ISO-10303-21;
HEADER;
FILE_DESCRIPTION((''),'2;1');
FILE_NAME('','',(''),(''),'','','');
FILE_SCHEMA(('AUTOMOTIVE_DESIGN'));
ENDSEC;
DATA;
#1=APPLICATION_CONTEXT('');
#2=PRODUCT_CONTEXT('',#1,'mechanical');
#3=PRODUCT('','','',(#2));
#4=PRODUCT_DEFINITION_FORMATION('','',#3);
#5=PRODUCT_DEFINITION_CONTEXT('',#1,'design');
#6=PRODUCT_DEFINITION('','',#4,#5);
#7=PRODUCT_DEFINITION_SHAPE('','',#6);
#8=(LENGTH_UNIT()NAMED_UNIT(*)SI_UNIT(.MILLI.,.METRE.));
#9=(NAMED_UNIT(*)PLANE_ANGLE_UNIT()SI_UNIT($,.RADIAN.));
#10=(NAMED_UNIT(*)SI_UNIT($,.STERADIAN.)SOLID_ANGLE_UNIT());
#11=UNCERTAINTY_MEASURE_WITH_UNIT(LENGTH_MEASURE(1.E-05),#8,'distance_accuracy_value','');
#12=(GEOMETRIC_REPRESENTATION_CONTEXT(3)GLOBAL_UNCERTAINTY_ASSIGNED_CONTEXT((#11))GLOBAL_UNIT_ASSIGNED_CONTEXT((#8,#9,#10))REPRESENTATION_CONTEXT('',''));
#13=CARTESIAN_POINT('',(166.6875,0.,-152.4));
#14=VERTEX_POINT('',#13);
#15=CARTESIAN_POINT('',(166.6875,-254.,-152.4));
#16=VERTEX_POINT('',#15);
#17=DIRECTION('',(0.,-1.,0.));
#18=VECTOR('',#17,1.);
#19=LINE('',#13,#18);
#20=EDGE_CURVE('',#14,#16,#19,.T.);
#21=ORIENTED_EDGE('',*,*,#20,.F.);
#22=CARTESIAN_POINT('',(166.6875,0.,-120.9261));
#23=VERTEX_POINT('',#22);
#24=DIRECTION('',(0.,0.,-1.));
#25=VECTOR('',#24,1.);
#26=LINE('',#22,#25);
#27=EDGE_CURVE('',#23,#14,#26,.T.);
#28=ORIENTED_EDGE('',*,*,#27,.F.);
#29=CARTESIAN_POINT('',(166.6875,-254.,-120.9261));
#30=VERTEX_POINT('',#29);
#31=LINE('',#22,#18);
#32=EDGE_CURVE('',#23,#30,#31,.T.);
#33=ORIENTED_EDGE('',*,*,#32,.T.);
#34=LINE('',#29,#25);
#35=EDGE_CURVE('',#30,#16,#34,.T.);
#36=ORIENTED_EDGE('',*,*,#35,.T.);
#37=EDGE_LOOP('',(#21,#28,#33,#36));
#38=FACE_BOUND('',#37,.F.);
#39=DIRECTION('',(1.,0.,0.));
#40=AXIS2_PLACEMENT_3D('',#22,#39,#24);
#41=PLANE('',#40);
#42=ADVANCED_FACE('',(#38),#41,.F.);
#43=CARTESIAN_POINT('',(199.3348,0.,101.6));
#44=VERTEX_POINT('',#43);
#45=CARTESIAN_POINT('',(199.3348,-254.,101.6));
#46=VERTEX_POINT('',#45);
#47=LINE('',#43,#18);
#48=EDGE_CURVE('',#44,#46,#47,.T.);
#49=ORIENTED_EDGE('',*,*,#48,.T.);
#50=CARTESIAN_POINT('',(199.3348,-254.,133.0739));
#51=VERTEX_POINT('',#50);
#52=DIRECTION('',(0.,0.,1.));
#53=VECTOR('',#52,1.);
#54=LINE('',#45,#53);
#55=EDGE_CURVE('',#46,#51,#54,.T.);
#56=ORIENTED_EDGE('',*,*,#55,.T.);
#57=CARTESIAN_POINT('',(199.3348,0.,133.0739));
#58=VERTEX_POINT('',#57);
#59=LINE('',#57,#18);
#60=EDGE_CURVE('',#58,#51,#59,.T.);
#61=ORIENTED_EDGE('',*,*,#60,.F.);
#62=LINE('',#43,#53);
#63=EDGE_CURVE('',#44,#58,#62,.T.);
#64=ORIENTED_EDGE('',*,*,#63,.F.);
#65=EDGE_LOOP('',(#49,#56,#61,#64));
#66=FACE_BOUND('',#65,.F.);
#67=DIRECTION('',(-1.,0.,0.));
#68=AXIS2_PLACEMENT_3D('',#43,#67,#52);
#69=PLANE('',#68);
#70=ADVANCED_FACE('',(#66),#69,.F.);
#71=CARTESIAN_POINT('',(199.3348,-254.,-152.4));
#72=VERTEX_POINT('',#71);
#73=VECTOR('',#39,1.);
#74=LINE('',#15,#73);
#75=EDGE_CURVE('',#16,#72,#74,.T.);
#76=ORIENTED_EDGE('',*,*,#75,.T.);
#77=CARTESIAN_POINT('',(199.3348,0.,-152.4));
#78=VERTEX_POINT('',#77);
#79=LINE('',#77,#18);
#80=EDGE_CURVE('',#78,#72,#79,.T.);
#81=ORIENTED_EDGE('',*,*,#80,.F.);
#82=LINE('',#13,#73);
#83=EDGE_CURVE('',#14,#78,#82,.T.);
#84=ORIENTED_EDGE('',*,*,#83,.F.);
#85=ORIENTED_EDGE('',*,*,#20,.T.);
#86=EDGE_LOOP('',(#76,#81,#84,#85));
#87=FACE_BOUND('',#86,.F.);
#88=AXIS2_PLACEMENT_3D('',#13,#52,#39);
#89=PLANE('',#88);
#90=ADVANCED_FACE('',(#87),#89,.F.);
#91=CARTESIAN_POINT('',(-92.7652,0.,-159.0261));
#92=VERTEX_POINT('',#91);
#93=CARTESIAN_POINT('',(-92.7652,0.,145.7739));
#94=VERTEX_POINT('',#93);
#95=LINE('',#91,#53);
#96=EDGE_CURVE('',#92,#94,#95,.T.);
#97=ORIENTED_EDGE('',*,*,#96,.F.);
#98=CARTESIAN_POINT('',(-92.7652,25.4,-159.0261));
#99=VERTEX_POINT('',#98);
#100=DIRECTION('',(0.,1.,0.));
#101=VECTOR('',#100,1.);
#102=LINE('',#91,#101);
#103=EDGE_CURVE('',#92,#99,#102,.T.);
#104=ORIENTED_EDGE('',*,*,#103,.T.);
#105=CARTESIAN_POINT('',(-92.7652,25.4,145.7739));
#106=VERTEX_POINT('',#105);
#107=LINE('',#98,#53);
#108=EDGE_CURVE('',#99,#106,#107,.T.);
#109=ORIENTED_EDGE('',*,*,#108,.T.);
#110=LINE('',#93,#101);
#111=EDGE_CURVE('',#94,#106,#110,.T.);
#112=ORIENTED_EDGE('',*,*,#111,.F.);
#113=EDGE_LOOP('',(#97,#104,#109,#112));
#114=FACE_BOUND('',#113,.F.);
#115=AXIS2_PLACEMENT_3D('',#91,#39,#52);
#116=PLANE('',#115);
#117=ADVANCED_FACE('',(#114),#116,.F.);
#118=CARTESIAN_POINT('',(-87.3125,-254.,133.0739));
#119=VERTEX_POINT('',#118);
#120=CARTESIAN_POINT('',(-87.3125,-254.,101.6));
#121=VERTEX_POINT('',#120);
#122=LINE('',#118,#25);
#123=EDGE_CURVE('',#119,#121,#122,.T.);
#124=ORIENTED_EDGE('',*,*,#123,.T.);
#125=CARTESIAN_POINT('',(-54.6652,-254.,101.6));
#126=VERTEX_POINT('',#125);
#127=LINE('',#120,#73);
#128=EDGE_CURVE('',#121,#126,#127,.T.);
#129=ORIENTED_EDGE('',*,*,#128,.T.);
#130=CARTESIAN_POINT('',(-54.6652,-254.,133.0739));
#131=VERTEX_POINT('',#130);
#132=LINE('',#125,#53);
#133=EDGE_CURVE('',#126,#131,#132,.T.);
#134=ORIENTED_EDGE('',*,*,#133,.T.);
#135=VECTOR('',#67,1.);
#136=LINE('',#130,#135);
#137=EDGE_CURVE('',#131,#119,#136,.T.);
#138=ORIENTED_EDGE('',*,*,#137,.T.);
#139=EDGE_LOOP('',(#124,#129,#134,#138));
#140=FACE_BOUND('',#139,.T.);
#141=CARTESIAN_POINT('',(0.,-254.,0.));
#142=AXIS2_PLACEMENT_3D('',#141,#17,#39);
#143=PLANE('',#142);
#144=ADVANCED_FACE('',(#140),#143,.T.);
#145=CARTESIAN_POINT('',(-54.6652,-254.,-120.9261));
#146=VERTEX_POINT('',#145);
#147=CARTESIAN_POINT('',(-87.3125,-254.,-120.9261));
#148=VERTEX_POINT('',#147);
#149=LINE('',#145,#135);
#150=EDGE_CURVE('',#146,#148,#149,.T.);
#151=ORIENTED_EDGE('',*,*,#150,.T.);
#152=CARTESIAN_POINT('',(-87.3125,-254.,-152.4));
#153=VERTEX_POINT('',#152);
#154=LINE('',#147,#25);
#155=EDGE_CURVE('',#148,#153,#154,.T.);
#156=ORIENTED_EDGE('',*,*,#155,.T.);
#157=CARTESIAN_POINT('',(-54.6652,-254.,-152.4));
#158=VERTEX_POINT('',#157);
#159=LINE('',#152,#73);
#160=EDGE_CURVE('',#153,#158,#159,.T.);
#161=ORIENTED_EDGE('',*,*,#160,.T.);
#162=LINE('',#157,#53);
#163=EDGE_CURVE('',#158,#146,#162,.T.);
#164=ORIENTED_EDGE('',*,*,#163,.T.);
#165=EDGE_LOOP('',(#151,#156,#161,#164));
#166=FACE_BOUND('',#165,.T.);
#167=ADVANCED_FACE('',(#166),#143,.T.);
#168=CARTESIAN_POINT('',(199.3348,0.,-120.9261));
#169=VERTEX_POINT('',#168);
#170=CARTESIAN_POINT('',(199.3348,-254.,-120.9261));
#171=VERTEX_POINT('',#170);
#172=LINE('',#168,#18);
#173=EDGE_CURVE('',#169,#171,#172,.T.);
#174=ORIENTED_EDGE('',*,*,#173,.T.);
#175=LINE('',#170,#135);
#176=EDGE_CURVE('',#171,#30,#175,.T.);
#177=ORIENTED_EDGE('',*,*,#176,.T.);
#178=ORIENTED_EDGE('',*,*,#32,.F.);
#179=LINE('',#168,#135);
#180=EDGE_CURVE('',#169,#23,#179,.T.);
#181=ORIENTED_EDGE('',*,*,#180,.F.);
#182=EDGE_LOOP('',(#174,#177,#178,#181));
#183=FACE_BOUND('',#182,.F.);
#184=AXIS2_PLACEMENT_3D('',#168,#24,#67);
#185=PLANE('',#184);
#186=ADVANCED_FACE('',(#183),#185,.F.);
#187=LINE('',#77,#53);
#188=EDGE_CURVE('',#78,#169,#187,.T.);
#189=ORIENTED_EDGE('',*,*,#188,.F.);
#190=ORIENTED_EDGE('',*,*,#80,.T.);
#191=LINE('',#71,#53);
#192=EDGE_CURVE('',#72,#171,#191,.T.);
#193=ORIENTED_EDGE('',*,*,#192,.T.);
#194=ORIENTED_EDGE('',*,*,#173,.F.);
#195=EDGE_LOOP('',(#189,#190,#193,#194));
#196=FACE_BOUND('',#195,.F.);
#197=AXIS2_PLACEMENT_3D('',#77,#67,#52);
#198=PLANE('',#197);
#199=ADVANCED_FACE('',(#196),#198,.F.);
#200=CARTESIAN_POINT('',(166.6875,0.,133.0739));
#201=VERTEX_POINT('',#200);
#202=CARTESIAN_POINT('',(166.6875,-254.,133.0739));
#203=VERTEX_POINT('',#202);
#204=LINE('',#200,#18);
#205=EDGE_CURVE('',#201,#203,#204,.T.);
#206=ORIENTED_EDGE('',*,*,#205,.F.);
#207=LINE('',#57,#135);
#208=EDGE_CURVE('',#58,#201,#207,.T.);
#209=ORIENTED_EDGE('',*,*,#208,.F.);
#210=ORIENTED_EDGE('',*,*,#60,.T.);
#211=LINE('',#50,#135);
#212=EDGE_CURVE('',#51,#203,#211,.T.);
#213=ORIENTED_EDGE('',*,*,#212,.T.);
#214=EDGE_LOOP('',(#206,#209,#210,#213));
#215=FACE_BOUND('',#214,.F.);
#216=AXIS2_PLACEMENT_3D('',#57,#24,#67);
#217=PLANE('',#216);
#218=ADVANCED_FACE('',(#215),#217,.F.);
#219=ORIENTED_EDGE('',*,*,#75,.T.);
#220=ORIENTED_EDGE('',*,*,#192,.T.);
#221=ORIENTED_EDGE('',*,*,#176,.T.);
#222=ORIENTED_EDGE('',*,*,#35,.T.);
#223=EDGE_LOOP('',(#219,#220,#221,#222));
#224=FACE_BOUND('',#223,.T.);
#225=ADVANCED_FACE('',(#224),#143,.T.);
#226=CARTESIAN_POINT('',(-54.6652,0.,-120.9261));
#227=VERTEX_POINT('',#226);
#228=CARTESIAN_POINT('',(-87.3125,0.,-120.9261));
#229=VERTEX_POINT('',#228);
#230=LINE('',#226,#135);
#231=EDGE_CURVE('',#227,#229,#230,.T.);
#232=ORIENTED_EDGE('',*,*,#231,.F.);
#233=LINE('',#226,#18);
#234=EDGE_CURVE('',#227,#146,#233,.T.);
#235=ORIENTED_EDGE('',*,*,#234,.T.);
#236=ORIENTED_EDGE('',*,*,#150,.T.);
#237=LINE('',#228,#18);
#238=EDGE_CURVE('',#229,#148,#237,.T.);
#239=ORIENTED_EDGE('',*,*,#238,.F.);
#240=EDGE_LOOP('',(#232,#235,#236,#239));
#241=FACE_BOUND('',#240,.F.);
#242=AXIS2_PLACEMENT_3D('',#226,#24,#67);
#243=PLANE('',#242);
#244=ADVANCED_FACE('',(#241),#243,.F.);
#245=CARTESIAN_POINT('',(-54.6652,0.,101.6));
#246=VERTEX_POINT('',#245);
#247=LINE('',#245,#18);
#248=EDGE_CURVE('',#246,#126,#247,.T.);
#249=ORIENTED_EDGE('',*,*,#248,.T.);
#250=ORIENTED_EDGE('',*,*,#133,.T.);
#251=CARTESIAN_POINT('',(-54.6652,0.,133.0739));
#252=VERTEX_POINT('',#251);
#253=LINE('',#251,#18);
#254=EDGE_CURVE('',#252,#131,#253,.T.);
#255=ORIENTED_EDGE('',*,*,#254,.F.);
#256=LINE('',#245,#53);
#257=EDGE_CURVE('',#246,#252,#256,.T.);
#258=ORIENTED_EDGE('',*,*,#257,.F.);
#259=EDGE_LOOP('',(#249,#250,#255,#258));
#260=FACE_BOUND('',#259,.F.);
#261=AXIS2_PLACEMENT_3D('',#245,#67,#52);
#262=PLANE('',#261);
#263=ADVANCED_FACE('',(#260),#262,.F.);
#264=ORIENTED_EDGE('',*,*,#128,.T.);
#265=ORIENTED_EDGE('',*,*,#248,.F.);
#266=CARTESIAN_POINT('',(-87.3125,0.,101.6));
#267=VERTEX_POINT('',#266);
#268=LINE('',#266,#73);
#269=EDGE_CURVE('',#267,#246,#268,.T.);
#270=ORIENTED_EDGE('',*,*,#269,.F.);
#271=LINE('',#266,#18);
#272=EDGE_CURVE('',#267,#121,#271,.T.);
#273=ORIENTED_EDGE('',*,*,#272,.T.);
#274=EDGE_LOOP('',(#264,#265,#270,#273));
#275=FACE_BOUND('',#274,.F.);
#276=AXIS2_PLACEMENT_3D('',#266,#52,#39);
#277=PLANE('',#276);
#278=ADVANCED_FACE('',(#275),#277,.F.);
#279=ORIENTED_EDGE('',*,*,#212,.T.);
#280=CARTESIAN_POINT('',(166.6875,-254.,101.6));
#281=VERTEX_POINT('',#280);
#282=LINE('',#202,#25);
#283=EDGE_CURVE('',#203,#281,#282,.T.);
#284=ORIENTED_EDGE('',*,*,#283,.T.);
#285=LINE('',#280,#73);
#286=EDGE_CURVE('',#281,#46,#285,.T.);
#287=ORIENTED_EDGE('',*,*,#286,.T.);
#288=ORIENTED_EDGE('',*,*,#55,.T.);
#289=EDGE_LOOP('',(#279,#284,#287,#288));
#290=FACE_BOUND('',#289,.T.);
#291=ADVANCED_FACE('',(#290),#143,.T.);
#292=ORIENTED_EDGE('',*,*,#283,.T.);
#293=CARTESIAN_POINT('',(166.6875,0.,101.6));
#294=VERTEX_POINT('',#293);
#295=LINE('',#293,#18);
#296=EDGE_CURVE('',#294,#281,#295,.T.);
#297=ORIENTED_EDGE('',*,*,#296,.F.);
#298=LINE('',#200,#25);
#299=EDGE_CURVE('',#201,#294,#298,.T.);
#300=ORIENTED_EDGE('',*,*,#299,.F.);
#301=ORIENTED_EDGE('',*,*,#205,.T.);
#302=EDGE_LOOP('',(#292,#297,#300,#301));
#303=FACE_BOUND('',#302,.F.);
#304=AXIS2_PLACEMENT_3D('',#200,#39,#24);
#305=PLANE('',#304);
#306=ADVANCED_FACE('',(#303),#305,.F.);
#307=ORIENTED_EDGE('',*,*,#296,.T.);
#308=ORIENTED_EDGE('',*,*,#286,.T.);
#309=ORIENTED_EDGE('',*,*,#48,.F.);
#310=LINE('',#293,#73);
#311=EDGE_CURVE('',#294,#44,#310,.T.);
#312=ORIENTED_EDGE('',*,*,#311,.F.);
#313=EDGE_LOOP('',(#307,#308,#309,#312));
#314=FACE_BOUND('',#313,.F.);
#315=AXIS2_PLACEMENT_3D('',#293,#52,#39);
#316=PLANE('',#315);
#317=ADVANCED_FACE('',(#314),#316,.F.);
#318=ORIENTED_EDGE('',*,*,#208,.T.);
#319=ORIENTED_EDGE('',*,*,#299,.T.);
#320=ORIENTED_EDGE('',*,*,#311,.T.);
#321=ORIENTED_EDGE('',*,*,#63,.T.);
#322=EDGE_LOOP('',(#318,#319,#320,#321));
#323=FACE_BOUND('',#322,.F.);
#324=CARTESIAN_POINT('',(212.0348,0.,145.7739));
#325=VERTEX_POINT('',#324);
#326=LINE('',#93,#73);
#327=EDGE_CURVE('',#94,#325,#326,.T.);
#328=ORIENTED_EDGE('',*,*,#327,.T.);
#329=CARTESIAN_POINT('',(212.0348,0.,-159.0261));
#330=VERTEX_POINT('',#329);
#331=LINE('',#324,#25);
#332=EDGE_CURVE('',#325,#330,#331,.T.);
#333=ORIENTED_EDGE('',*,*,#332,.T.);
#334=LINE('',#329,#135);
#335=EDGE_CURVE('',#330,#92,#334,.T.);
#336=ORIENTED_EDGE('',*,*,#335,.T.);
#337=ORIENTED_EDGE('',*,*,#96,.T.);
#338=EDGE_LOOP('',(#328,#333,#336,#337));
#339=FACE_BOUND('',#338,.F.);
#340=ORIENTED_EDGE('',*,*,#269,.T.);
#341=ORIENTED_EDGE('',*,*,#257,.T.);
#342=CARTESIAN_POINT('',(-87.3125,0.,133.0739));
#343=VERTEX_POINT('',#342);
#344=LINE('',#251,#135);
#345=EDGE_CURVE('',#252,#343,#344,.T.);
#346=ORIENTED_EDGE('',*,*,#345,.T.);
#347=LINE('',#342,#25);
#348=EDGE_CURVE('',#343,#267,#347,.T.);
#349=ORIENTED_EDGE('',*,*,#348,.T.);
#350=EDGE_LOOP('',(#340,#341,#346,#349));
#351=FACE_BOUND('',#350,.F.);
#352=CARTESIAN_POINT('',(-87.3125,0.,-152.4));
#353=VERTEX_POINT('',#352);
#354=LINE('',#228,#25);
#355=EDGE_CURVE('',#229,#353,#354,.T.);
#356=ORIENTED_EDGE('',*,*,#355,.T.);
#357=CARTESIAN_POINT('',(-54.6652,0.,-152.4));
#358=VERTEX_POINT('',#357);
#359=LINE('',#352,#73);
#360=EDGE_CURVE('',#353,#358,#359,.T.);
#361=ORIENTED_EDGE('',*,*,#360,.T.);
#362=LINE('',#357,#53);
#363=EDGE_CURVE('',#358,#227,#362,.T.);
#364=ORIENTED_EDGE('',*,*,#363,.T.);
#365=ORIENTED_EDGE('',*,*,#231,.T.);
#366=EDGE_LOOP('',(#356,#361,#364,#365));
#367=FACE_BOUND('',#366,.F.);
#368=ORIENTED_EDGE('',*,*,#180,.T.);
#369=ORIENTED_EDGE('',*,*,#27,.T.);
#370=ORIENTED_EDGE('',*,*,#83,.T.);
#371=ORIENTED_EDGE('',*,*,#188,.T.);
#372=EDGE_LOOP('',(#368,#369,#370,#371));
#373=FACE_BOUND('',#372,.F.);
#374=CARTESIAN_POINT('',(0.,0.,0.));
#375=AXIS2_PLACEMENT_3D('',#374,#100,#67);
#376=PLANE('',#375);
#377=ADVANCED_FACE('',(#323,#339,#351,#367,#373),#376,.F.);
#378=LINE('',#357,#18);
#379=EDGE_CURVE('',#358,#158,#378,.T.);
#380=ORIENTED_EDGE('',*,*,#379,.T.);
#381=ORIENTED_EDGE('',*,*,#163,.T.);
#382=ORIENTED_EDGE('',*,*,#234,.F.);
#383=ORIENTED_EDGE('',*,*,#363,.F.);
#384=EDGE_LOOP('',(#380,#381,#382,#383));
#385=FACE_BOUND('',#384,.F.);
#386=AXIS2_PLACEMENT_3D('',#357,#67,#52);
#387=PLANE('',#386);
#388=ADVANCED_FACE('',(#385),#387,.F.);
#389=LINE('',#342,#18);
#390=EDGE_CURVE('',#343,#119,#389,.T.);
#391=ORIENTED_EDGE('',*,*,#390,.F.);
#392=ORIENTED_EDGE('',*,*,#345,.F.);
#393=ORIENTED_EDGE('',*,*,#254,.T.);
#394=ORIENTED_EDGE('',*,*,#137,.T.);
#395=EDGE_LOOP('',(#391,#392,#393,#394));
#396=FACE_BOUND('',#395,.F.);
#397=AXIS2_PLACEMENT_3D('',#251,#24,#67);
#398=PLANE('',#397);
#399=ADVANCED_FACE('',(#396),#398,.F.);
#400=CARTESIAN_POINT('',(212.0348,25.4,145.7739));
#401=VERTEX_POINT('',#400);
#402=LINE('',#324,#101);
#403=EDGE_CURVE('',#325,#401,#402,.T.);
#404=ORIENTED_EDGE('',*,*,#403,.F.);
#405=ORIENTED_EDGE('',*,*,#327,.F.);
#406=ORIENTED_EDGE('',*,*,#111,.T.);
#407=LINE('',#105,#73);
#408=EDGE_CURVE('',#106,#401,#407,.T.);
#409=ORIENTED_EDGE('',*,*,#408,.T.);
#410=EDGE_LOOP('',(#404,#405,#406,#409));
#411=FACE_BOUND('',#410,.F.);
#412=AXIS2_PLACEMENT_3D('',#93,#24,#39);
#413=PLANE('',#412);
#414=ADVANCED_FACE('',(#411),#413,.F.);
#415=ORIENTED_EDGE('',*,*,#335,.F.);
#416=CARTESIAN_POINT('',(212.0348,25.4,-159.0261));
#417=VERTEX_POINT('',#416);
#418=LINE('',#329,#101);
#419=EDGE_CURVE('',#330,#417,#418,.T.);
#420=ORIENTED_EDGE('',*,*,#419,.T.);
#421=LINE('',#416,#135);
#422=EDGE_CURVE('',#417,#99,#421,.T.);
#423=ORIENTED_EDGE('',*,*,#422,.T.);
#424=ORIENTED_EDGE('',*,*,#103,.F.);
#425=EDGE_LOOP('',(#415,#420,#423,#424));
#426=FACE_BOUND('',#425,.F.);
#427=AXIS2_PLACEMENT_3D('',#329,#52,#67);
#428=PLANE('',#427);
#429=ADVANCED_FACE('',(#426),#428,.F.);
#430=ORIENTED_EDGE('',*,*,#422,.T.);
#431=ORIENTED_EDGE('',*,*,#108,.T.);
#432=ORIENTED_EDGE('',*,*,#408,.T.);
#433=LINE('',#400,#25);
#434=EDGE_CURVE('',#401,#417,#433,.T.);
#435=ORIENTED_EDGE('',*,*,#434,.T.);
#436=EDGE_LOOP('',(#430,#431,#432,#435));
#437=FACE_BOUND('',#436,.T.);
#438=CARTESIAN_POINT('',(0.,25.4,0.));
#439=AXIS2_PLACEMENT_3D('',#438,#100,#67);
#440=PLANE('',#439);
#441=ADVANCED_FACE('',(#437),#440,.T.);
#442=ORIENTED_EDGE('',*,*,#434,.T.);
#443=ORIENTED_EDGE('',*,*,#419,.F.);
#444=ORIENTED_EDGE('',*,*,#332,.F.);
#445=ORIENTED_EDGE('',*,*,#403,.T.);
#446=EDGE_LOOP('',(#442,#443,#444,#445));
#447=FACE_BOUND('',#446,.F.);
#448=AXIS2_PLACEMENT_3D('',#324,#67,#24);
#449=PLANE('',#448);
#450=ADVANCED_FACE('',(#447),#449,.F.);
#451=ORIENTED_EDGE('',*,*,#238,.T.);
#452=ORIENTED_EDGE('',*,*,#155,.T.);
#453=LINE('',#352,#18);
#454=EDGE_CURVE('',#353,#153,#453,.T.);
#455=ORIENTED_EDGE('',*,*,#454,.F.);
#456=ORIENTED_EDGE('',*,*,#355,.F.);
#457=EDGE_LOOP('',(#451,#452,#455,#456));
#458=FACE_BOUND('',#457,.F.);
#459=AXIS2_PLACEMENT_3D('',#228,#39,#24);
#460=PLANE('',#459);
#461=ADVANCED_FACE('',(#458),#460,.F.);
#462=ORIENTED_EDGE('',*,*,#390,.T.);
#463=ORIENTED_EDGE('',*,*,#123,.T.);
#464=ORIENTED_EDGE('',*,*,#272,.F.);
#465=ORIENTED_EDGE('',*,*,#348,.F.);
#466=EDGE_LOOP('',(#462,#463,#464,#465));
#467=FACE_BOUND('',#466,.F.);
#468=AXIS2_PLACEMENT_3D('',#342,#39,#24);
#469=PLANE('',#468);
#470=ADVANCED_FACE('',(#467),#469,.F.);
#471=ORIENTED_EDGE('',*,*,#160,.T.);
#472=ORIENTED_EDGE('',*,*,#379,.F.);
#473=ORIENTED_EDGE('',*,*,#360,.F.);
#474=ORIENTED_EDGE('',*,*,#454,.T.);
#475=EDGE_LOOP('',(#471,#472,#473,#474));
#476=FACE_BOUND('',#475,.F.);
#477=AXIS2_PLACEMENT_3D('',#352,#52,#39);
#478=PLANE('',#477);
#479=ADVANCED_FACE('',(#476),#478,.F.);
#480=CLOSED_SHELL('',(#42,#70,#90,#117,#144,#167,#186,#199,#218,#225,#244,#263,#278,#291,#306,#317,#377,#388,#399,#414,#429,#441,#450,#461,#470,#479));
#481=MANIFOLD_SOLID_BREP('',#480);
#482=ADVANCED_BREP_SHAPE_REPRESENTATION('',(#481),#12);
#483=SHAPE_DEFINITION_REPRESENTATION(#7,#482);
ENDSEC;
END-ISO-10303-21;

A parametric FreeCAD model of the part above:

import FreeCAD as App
import Part
import Sketcher
from FreeCAD import Vector
Q = App.Units.Quantity


def add_polygon(sketch, points):
    """Adds a closed chain of lines whose ends are joined by coincident constraints."""
    first, n = sketch.GeometryCount, len(points)
    for a, b in zip(points, points[1:] + points[:1]):
        sketch.addGeometry(Part.LineSegment(App.Vector(*a, 0), App.Vector(*b, 0)), False)
    for i in range(n):
        sketch.addConstraint(Sketcher.Constraint("Coincident", first + i, 2, first + (i + 1) % n, 1))

doc = App.newDocument("Part")
body = doc.addObject("PartDesign::Body", "Body")

sketch1 = doc.addObject("Sketcher::SketchObject", "Sketch")
body.addObject(sketch1)
sketch1.AttachmentSupport = (doc.XZ_Plane, [""])
sketch1.MapMode = "FlatFace"
add_polygon(sketch1, [(-93, -159), (-93, 146), (212, 146), (212, -159)])
sketch1.addConstraint([
    Sketcher.Constraint("Vertical", 0),
    Sketcher.Constraint("Horizontal", 1),
    Sketcher.Constraint("Vertical", 2),
    Sketcher.Constraint("Horizontal", 3),
    Sketcher.Constraint("Equal", 3, 0),
    Sketcher.Constraint("DistanceX", 1, 1, 1, 2, Q("12 in")),
    Sketcher.Constraint("DistanceX", 0, 2, -1, 1, 92.7652),
    Sketcher.Constraint("DistanceY", -1, 1, 0, 2, 145.774),
])
pad1 = doc.addObject("PartDesign::Pad", "Pad")
body.addObject(pad1)
pad1.Profile = sketch1
pad1.Length = Q("1 in")
pad1.Reversed = True

sketch2 = doc.addObject("Sketcher::SketchObject", "Sketch001")
body.addObject(sketch2)
sketch2.AttachmentSupport = (doc.XZ_Plane, [""])
sketch2.MapMode = "FlatFace"
add_polygon(sketch2, [(199, 102), (199, 133), (167, 133), (167, 102)])
add_polygon(sketch2, [(199, -121), (167, -121), (167, -152), (199, -152)])
add_polygon(sketch2, [(-55, 133), (-87, 133), (-87, 102), (-55, 102)])
add_polygon(sketch2, [(-55, -121), (-87, -121), (-87, -152), (-55, -152)])
sketch2.addConstraint([
    Sketcher.Constraint("Vertical", 0),
    Sketcher.Constraint("Horizontal", 1),
    Sketcher.Constraint("Vertical", 2),
    Sketcher.Constraint("Horizontal", 3),
    Sketcher.Constraint("Horizontal", 4),
    Sketcher.Constraint("Vertical", 5),
    Sketcher.Constraint("Horizontal", 6),
    Sketcher.Constraint("Vertical", 7),
    Sketcher.Constraint("Horizontal", 8),
    Sketcher.Constraint("Vertical", 9),
    Sketcher.Constraint("Horizontal", 10),
    Sketcher.Constraint("Vertical", 11),
    Sketcher.Constraint("Horizontal", 12),
    Sketcher.Constraint("Vertical", 13),
    Sketcher.Constraint("Horizontal", 14),
    Sketcher.Constraint("Vertical", 15),
    Sketcher.Constraint("Horizontal", 1, 2, 8, 2),
    Sketcher.Constraint("Horizontal", 3, 2, 9, 2),
    Sketcher.Constraint("Horizontal", 7, 2, 12, 2),
    Sketcher.Constraint("Horizontal", 6, 2, 13, 2),
    Sketcher.Constraint("Vertical", 2, 2, 4, 2),
    Sketcher.Constraint("Vertical", 3, 2, 6, 2),
    Sketcher.Constraint("Vertical", 9, 2, 12, 2),
    Sketcher.Constraint("Vertical", 11, 2, 14, 2),
    Sketcher.Constraint("Equal", 6, 8),
    Sketcher.Constraint("Equal", 2, 5),
    Sketcher.Constraint("DistanceY", 4, 2, 1, 2, Q("10 in")),
    Sketcher.Constraint("DistanceX", 8, 2, 1, 2, Q("10 in")),
    Sketcher.Constraint("DistanceY", -1, 1, 2, 2, Q("4 in")),
    Sketcher.Constraint("DistanceX", -1, 1, 1, 2, Q("6.5625 in")),
    Sketcher.Constraint("DistanceX", 1, 2, 1, 1, 32.6473),
    Sketcher.Constraint("DistanceY", 0, 1, 0, 2, 31.474),
])
pad2 = doc.addObject("PartDesign::Pad", "Pad001")
body.addObject(pad2)
pad2.Profile = sketch2
pad2.Length = Q("10 in")

doc.recompute()
